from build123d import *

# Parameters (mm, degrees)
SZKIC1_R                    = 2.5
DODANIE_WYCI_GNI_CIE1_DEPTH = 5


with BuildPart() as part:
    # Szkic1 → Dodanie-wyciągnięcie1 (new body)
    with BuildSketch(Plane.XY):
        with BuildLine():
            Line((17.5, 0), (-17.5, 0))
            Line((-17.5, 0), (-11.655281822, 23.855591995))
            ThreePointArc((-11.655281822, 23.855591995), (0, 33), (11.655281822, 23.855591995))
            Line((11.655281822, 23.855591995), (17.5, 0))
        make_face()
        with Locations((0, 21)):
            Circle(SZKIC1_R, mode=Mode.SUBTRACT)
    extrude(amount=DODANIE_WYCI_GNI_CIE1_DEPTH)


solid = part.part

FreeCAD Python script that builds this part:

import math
import FreeCAD as App
import Part
import Sketcher
from FreeCAD import Vector

doc = App.newDocument("Part")
body = doc.addObject("PartDesign::Body", "Body")

# Sketch on XY plane
sketch1 = doc.addObject("Sketcher::SketchObject", "Sketch")
body.addObject(sketch1)
sketch1.AttachmentSupport = (doc.XY_Plane, [""])
sketch1.MapMode = "FlatFace"
sketch1.addGeometry([
    Part.LineSegment(Vector(-17.5, 0, 0), Vector(17.5, 0, 0)),  # 0
    Part.LineSegment(Vector(17.5, 0, 0), Vector(11.7, 23.9, 0)),  # 1
    Part.ArcOfCircle(Part.Circle(Vector(0, 21, 0), Vector(0, 0, 1), 12), math.radians(14), math.radians(166)),  # 2
    Part.LineSegment(Vector(-11.7, 23.9, 0), Vector(-17.5, 0, 0)),  # 3
    Part.Circle(Vector(0, 21, 0), Vector(0, 0, 1), 2.5),  # 4
], False)
sketch1.addConstraint([
    Sketcher.Constraint("Coincident", 0, 2, 1, 1),
    Sketcher.Constraint("Tangent", 1, 2, 2, 1),
    Sketcher.Constraint("Tangent", 2, 2, 3, 1),
    Sketcher.Constraint("Coincident", 3, 2, 0, 1),
    Sketcher.Constraint("Horizontal", 0),
    Sketcher.Constraint("Coincident", 4, 3, 2, 3),
    Sketcher.Constraint("Symmetric", 0, 2, 3, 2, -1, 1),
    Sketcher.Constraint("PointOnObject", 2, 3, -2),
    Sketcher.Constraint("Diameter", 4, 5.0),
    Sketcher.Constraint("Radius", 2, 12.0),
    Sketcher.Constraint("DistanceX", 0, 1, 0, 2, 35.0),
    Sketcher.Constraint("DistanceY", -1, 1, 2, 3, 21.0),
])
pad1 = doc.addObject("PartDesign::Pad", "Pad")
body.addObject(pad1)
pad1.Profile = sketch1
pad1.Length = 5

doc.recompute()
